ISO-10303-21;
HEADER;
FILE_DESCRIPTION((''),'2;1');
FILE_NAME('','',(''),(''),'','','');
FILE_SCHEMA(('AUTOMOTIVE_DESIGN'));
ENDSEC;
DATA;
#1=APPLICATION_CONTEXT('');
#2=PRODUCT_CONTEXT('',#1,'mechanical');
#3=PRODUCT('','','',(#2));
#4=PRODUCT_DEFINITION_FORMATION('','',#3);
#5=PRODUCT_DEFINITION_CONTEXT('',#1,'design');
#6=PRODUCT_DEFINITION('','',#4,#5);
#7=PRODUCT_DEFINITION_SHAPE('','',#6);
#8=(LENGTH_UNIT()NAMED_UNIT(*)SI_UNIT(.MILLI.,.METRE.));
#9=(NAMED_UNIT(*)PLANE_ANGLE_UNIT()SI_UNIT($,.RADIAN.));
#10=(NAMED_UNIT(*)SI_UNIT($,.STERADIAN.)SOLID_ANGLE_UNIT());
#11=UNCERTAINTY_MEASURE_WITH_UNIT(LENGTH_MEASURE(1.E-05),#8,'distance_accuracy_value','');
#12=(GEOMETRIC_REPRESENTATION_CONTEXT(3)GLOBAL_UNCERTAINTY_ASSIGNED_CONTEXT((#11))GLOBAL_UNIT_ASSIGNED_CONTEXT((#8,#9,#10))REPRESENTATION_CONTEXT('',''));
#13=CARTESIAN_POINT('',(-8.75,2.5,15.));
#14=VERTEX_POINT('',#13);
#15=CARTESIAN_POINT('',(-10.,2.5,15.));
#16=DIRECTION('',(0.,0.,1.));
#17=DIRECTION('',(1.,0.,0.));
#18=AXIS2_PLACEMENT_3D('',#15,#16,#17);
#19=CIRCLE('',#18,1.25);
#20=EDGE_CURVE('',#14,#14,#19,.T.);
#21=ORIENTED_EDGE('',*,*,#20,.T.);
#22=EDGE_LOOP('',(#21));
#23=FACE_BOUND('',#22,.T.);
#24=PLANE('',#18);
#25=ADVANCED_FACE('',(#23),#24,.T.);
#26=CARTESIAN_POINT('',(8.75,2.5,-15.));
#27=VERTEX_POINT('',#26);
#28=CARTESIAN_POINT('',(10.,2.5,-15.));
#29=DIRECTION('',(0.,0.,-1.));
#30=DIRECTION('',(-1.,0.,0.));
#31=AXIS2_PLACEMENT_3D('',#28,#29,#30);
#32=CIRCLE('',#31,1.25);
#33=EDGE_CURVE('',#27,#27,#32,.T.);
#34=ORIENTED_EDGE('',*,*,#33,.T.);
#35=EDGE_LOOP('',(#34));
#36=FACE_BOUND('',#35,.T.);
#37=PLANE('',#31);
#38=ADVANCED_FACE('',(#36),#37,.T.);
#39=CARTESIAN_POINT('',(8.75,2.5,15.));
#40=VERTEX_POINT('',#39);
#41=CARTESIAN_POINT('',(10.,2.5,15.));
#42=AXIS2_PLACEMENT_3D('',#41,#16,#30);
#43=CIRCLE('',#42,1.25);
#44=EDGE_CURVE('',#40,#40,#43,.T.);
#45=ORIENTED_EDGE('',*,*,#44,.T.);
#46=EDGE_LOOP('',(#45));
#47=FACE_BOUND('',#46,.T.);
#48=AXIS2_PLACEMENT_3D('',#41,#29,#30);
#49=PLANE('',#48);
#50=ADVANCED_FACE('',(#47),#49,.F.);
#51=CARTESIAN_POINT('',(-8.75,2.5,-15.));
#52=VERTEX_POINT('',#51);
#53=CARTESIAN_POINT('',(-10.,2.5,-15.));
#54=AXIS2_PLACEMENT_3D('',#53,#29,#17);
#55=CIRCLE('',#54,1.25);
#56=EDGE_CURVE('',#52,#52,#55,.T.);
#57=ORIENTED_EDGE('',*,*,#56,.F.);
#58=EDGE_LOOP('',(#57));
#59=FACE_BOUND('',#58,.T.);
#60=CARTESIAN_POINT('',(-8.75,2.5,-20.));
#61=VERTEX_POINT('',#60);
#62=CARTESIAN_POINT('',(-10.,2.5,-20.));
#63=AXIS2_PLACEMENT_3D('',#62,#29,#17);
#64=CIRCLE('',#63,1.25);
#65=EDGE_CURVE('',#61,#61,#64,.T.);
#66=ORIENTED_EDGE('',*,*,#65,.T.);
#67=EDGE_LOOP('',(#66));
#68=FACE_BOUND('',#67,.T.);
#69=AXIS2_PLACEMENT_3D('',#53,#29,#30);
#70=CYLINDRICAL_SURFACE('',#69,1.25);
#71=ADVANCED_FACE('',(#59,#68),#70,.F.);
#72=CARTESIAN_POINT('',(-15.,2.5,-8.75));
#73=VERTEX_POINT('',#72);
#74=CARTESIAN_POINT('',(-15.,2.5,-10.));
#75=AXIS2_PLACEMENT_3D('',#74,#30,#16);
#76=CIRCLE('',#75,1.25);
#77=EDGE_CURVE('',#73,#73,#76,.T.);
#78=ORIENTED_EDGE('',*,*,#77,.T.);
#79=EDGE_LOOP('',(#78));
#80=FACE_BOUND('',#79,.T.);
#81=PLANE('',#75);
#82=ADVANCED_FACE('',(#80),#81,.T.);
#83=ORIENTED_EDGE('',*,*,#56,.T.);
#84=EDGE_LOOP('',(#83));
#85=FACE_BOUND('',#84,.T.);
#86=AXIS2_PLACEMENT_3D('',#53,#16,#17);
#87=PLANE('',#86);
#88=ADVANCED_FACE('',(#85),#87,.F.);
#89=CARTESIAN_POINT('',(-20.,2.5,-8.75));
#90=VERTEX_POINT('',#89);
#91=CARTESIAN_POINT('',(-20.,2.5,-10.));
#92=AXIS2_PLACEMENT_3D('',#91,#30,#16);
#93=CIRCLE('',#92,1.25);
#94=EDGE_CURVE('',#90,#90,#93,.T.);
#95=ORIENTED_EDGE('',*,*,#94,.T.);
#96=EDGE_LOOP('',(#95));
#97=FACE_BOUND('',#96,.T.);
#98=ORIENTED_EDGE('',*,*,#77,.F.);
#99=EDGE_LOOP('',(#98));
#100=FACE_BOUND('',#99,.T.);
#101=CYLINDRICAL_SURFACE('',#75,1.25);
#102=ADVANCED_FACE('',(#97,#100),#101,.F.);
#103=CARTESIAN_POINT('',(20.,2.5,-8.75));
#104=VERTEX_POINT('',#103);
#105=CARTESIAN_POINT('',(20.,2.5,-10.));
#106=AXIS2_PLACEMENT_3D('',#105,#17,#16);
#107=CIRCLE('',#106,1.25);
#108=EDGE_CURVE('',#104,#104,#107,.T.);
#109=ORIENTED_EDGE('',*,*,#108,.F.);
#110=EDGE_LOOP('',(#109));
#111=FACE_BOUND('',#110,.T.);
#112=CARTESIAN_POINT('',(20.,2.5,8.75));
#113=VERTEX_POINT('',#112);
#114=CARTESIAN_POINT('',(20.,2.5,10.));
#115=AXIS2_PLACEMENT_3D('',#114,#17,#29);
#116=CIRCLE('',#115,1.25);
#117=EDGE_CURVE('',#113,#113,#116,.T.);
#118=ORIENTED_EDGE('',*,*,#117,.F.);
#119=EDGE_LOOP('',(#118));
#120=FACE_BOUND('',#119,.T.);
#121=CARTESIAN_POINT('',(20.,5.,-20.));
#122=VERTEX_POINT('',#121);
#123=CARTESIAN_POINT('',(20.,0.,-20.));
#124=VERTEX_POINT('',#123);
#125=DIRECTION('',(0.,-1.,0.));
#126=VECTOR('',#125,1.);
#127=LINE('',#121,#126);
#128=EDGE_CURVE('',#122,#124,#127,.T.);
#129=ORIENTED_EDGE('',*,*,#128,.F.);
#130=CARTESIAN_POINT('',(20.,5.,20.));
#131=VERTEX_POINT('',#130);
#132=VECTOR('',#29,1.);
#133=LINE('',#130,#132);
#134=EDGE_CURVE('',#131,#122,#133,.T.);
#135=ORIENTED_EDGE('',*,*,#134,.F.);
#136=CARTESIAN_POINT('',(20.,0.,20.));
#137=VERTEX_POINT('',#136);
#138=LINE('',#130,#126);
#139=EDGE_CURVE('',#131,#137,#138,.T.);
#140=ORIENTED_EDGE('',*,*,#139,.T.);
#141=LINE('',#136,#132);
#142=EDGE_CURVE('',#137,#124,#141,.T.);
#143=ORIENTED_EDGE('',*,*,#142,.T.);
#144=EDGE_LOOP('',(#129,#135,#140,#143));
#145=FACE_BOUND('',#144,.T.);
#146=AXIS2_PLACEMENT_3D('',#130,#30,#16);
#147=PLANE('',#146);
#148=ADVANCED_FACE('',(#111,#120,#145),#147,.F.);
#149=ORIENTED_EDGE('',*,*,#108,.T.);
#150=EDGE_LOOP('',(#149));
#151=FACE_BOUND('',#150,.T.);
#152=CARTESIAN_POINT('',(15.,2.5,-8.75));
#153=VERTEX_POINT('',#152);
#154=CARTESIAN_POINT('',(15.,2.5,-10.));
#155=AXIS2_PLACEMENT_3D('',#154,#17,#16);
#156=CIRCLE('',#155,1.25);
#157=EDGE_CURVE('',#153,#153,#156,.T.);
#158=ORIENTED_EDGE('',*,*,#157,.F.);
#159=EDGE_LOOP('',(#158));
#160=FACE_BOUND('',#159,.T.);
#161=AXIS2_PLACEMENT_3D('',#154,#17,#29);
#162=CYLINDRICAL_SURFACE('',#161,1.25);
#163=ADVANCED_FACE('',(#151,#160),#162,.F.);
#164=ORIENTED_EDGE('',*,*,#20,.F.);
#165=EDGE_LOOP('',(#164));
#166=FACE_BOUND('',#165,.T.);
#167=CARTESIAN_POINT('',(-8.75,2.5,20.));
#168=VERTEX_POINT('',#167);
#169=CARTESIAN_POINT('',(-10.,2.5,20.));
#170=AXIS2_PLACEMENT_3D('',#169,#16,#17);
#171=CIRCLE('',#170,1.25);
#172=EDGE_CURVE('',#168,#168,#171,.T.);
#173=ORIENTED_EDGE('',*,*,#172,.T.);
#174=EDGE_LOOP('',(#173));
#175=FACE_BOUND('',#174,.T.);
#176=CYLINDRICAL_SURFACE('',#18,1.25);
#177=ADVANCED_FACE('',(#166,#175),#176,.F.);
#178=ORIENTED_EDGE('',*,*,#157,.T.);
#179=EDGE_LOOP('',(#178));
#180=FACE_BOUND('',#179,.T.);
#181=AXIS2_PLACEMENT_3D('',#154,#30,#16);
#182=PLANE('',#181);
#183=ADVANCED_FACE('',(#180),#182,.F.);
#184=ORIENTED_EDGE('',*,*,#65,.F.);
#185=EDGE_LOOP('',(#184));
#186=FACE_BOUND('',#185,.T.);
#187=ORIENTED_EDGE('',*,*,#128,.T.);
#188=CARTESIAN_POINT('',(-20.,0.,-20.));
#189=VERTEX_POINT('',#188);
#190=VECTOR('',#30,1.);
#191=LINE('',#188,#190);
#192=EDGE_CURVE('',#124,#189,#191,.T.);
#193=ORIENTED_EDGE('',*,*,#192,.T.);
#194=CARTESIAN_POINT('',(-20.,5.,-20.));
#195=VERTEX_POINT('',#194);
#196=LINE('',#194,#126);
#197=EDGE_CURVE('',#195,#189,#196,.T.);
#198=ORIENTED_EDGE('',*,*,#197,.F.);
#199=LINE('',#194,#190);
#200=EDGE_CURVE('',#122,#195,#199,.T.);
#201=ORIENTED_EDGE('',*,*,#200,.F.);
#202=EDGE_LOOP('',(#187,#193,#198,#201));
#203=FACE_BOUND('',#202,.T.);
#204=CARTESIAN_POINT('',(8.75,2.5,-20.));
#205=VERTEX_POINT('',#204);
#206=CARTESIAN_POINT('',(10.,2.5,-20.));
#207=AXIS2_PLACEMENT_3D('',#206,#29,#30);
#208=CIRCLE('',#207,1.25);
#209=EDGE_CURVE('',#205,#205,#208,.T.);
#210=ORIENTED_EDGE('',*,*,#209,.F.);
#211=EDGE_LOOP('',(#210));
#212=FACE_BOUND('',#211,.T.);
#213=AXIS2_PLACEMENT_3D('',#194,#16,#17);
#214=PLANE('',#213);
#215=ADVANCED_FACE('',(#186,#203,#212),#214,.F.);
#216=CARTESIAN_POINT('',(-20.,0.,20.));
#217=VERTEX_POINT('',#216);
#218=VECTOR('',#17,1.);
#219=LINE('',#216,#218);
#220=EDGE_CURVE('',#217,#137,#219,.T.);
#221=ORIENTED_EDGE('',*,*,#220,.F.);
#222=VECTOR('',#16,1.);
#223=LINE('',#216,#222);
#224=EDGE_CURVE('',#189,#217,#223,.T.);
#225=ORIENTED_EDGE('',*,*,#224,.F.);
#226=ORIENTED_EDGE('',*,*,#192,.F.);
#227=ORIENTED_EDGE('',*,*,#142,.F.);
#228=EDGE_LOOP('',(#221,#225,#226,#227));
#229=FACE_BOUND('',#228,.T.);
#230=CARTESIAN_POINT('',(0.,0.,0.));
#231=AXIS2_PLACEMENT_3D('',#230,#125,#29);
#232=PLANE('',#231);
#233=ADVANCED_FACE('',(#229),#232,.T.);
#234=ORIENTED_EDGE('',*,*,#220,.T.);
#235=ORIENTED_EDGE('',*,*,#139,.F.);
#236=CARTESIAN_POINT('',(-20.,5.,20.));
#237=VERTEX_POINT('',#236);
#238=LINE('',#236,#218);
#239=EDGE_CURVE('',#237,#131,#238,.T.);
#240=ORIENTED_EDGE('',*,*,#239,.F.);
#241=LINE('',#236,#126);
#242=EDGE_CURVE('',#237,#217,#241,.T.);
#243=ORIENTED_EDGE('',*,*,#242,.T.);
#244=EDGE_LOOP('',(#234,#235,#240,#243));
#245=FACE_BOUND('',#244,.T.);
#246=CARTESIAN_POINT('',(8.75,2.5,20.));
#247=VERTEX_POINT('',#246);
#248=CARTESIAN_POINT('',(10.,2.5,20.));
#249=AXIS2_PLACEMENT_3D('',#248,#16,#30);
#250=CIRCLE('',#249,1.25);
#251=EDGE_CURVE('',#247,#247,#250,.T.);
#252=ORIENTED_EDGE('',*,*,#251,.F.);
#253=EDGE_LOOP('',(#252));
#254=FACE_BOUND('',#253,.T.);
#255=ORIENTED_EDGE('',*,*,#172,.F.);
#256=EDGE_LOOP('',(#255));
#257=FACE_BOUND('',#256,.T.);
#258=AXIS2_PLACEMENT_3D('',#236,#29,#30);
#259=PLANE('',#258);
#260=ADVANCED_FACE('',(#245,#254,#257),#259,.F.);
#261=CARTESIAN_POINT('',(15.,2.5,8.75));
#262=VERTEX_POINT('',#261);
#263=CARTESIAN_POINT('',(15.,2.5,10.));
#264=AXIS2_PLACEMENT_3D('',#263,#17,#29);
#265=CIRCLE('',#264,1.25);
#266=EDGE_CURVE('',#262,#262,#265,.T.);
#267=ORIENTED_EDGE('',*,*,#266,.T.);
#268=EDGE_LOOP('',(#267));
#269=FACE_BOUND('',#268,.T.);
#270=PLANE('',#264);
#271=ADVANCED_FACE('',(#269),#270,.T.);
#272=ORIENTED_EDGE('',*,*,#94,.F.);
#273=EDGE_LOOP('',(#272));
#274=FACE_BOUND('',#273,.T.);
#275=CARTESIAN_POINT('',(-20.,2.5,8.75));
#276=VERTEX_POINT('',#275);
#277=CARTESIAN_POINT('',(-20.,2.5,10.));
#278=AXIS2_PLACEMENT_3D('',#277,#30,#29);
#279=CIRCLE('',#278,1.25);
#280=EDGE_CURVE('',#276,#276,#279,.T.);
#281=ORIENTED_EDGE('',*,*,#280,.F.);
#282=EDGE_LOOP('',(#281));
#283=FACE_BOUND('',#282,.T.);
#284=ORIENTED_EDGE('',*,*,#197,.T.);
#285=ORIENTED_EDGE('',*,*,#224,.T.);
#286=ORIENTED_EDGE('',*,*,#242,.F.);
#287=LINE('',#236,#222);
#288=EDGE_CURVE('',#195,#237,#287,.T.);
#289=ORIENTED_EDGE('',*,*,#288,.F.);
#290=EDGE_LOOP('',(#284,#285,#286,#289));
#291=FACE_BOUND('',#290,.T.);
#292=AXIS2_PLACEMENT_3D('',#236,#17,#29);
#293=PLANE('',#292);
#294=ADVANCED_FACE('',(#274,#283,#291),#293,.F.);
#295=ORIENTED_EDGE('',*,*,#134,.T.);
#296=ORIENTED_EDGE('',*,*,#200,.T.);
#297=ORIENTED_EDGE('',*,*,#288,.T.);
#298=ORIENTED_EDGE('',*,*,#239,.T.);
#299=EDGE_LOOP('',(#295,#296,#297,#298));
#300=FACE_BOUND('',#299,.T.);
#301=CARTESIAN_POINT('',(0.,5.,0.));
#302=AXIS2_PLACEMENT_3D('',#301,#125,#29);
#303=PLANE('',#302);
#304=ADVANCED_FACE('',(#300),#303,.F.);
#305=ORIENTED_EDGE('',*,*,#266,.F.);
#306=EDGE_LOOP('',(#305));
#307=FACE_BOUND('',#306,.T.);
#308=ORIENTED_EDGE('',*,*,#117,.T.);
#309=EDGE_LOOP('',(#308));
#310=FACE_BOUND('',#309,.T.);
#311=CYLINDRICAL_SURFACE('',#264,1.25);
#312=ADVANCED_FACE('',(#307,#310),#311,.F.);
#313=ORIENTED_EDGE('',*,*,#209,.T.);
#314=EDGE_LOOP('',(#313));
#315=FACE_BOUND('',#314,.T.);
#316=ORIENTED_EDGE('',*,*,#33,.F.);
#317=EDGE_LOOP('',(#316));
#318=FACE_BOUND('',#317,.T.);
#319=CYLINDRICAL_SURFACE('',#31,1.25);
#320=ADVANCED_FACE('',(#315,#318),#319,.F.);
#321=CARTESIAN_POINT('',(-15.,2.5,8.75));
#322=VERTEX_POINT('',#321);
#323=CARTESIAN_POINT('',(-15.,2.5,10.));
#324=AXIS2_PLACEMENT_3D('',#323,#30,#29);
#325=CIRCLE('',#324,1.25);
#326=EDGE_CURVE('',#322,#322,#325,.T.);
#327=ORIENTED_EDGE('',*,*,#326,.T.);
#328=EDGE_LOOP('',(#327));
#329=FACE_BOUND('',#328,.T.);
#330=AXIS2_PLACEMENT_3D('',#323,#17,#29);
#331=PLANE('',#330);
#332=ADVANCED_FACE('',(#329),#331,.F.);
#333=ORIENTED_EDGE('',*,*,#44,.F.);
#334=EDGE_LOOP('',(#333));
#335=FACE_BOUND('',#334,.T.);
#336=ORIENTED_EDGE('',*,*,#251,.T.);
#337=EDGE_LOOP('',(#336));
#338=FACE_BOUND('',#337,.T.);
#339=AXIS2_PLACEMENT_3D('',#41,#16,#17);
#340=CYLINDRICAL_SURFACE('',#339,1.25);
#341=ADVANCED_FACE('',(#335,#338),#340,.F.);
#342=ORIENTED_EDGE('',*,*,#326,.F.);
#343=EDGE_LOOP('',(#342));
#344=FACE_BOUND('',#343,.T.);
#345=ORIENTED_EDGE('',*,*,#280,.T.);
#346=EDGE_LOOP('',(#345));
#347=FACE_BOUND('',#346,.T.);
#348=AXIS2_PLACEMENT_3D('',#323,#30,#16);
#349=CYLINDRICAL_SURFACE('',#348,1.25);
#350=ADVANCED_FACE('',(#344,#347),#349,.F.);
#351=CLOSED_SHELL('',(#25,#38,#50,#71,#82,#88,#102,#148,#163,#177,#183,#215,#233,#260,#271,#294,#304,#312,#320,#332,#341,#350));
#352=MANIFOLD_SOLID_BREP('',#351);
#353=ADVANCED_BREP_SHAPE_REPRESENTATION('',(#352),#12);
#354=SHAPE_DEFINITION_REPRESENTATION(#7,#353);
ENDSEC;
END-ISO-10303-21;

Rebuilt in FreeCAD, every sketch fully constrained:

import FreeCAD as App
import Part
import Sketcher

V = App.Vector
Q = App.Units.Quantity

doc = App.newDocument("Part")
body = doc.addObject("PartDesign::Body", "Body")

# Sketch on XZ plane
sketch1 = body.newObject("Sketcher::SketchObject", "Sketch")
sketch1.AttachmentSupport = (doc.getObject("XZ_Plane"), [""])
sketch1.MapMode = "FlatFace"
sketch1.addGeometry(Part.LineSegment(V(-20, -20, 0), V(-20, 20, 0)), False)
sketch1.addGeometry(Part.LineSegment(V(-20, 20, 0), V(20, 20, 0)), False)
sketch1.addGeometry(Part.LineSegment(V(20, 20, 0), V(20, -20, 0)), False)
sketch1.addGeometry(Part.LineSegment(V(20, -20, 0), V(-20, -20, 0)), False)
sketch1.addConstraint(Sketcher.Constraint("Coincident", 0, 2, 1, 1))
sketch1.addConstraint(Sketcher.Constraint("Coincident", 1, 2, 2, 1))
sketch1.addConstraint(Sketcher.Constraint("Coincident", 2, 2, 3, 1))
sketch1.addConstraint(Sketcher.Constraint("Coincident", 3, 2, 0, 1))
sketch1.addConstraint(Sketcher.Constraint("Vertical", 0))
sketch1.addConstraint(Sketcher.Constraint("Horizontal", 1))
sketch1.addConstraint(Sketcher.Constraint("Vertical", 2))
sketch1.addConstraint(Sketcher.Constraint("Horizontal", 3))
sketch1.addConstraint(Sketcher.Constraint("Symmetric", 0, 2, 2, 2, -1, 1))
sketch1.addConstraint(Sketcher.Constraint("Equal", 3, 0))
sketch1.addConstraint(Sketcher.Constraint("DistanceX", 1, 1, 1, 2, Q("40 mm")))
pad1 = body.newObject("PartDesign::Pad", "Pad")
pad1.Profile = sketch1
pad1.Length = 5
pad1.Reversed = True

# Sketch on XY plane
sketch2 = body.newObject("Sketcher::SketchObject", "Sketch001")
sketch2.AttachmentSupport = (doc.getObject("XY_Plane"), [""])
sketch2.MapMode = "FlatFace"
sketch2.AttachmentOffset = App.Placement(V(0, 0, 20), App.Rotation())
sketch2.addGeometry(Part.Circle(V(-10, 2.5, 0), V(0, 0, 1), 1.2), False)
sketch2.addGeometry(Part.Circle(V(10, 2.5, 0), V(0, 0, 1), 1.2), False)
sketch2.addConstraint(Sketcher.Constraint("Equal", 0, 1))
sketch2.addConstraint(Sketcher.Constraint("Symmetric", 0, 3, 1, 3, -2))
sketch2.addConstraint(Sketcher.Constraint("Diameter", 0, Q("2.5 mm")))
sketch2.addConstraint(Sketcher.Constraint("DistanceX", 0, 3, -1, 1, Q("10 mm")))
sketch2.addConstraint(Sketcher.Constraint("DistanceY", -1, 1, 0, 3, Q("2.5 mm")))
pocket1 = body.newObject("PartDesign::Pocket", "Pocket")
pocket1.Profile = sketch2
pocket1.Length = 5
doc.recompute()

polarpattern = body.newObject("PartDesign::PolarPattern", "PolarPattern")
polarpattern.Originals = [pocket1]
polarpattern.Axis = (doc.getObject("Y_Axis"), [""])
polarpattern.Angle = 360
polarpattern.Occurrences = 4
body.Tip = polarpattern

doc.recompute()
